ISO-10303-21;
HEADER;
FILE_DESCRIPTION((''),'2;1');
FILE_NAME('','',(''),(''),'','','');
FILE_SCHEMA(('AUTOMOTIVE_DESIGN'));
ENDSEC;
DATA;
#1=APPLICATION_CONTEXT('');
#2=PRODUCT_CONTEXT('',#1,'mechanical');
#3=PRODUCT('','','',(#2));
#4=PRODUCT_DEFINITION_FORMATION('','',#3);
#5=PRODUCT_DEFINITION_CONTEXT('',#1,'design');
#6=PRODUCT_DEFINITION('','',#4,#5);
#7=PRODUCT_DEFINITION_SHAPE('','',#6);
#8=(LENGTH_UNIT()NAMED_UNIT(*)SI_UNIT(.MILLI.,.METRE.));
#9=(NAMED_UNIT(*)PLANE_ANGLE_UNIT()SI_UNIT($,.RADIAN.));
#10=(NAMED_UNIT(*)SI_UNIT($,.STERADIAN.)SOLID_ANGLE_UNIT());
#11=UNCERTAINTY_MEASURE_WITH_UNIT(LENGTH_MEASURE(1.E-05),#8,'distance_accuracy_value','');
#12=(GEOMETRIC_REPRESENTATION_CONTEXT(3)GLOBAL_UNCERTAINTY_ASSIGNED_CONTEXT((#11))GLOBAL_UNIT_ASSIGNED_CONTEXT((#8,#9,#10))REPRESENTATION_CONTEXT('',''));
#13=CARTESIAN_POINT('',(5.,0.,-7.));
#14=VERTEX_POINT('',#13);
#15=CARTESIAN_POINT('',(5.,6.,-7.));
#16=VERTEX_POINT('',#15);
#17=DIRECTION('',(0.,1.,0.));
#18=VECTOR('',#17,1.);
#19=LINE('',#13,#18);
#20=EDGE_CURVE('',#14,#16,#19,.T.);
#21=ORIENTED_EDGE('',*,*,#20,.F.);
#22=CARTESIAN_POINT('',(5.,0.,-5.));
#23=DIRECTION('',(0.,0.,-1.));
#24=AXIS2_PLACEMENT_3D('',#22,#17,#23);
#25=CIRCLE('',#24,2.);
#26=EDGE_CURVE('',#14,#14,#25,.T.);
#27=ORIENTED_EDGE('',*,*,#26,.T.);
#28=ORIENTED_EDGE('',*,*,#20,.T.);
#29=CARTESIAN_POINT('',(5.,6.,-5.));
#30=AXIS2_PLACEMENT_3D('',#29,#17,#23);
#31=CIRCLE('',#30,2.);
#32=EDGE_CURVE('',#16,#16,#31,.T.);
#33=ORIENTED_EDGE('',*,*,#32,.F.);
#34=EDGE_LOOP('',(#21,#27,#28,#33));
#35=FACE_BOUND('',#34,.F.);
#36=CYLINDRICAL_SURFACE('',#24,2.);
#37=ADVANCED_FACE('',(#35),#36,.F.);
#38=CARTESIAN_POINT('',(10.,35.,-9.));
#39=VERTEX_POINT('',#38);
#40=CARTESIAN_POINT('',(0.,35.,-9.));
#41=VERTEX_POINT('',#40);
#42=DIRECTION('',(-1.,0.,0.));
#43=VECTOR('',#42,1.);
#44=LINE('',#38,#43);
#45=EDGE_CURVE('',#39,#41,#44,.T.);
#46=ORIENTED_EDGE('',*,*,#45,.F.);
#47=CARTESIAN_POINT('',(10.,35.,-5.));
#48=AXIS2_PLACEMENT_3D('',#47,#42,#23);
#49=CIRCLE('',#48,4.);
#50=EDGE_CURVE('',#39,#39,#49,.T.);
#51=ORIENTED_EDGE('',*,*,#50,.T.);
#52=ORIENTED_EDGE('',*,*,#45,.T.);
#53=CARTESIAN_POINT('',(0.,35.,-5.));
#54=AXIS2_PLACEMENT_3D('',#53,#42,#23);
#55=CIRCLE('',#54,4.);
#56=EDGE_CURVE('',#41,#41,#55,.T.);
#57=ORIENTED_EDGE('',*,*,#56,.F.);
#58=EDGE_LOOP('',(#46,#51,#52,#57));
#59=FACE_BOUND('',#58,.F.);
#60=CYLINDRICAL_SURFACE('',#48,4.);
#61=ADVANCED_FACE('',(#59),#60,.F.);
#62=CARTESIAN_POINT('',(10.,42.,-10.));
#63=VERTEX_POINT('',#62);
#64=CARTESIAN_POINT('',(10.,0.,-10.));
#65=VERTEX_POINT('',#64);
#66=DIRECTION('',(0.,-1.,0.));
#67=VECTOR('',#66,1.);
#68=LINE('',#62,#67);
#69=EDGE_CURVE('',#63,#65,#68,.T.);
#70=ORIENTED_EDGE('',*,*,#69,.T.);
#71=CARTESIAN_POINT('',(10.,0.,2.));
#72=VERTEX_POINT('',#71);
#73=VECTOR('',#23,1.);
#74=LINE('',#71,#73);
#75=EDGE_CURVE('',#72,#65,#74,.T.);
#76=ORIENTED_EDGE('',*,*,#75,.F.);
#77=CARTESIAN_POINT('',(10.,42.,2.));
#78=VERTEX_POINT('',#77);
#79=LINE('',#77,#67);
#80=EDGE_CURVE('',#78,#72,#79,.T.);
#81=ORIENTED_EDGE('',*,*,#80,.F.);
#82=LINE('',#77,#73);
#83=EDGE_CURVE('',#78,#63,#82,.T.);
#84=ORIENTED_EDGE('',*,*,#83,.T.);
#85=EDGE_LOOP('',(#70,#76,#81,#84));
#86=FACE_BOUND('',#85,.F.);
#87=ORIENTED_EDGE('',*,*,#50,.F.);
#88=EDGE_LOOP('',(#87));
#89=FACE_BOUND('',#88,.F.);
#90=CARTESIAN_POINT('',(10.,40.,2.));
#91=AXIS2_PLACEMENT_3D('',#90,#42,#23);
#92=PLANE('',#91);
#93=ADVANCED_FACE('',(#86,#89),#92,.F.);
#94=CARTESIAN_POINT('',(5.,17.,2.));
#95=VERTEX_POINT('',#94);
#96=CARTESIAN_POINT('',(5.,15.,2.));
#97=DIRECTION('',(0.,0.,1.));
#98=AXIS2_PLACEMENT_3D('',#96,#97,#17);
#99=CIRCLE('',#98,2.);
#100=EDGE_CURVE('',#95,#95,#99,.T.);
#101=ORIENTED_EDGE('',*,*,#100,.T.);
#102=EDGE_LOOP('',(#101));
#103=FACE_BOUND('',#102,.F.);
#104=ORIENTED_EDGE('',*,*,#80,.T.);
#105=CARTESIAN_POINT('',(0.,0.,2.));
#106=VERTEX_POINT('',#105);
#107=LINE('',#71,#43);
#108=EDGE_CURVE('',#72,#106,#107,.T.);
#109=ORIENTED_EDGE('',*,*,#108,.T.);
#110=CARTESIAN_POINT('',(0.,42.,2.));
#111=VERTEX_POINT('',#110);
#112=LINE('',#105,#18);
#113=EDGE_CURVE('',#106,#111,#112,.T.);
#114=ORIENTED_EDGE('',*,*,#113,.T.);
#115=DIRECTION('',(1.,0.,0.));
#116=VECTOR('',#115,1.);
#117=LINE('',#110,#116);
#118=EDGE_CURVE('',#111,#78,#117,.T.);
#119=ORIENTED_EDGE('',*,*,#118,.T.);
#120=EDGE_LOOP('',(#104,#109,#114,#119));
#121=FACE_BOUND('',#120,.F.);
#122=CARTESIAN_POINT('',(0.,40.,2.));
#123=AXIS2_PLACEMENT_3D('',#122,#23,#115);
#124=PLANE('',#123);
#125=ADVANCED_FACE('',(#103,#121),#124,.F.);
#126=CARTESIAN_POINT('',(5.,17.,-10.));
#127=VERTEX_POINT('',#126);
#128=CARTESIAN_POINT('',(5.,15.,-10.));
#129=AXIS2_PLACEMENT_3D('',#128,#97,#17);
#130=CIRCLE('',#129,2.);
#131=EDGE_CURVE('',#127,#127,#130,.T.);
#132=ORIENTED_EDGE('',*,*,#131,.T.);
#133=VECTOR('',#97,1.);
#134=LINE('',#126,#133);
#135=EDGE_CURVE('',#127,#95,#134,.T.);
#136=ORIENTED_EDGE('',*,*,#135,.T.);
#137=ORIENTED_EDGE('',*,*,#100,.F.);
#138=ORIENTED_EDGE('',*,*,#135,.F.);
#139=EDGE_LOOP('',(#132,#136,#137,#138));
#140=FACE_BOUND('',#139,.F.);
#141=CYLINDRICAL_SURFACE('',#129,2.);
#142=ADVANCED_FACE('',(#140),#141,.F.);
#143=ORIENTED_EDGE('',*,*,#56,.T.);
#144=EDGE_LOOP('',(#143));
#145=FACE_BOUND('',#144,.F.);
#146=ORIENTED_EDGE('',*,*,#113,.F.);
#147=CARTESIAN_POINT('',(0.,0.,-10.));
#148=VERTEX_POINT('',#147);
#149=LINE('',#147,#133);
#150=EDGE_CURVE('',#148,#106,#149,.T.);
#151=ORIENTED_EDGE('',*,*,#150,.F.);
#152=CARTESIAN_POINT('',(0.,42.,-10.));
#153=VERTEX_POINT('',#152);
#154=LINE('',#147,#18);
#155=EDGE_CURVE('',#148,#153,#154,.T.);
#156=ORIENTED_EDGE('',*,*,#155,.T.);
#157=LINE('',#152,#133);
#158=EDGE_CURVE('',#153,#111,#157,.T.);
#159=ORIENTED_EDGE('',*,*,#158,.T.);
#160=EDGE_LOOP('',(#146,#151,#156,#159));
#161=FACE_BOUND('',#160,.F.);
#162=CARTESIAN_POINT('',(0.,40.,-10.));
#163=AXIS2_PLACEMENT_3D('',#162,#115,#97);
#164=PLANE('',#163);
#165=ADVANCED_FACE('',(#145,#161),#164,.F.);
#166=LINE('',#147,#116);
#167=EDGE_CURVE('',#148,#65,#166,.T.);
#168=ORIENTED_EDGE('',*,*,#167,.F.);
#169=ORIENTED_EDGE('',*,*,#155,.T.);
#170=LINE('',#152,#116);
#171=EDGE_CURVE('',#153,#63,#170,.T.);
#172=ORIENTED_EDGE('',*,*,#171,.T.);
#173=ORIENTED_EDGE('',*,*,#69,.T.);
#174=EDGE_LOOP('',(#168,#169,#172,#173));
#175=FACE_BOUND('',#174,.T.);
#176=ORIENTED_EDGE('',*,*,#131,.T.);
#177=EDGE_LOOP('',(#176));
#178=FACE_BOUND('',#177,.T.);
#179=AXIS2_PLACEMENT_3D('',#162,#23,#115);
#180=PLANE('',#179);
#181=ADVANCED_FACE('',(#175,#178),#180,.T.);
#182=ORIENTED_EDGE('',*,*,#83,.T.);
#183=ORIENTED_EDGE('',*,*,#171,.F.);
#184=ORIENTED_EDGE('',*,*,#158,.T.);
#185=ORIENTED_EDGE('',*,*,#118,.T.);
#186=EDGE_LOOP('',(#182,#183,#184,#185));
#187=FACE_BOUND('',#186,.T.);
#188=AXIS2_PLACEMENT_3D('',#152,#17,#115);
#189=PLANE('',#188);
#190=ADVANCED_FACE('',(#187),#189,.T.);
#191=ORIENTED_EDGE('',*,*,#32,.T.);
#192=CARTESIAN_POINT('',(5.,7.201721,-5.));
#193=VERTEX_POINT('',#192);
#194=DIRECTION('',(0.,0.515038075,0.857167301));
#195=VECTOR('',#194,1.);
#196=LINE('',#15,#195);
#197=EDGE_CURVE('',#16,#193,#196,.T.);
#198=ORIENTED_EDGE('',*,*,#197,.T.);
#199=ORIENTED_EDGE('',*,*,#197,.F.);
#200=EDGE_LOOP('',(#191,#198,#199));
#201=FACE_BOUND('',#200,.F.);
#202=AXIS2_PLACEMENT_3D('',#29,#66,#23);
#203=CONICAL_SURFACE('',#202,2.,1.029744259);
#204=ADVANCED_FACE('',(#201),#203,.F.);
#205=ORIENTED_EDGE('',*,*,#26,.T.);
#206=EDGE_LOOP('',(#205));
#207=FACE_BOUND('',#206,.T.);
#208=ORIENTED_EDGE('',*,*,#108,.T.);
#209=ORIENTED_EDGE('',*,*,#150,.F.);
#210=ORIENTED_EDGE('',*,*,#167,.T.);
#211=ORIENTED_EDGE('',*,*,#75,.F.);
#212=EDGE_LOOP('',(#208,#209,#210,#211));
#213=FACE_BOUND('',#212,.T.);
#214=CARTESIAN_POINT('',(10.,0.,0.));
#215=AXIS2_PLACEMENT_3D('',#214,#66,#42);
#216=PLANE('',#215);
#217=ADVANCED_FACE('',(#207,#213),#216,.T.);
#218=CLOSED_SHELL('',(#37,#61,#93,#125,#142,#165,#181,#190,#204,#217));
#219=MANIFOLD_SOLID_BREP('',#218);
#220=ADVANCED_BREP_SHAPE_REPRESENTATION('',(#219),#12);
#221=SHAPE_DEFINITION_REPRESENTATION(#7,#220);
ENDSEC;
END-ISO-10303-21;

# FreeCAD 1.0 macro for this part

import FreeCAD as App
import Part
import Sketcher

doc = App.newDocument("Part")
body = doc.addObject("PartDesign::Body", "Body")

# Sketch on YZ plane
sketch1 = doc.addObject("Sketcher::SketchObject", "Sketch")
body.addObject(sketch1)
sketch1.AttachmentSupport = (doc.YZ_Plane, [""])
sketch1.MapMode = "FlatFace"
sketch1.addGeometry(Part.LineSegment(App.Vector(40, 0, 0), App.Vector(0, 0, 0)), False)
sketch1.addGeometry(Part.LineSegment(App.Vector(0, 0, 0), App.Vector(0, -10, 0)), False)
sketch1.addGeometry(Part.LineSegment(App.Vector(0, -10, 0), App.Vector(40, -10, 0)), False)
sketch1.addGeometry(Part.LineSegment(App.Vector(40, -10, 0), App.Vector(40, 0, 0)), False)
sketch1.addConstraint(Sketcher.Constraint("Coincident", 0, 2, 1, 1))
sketch1.addConstraint(Sketcher.Constraint("Coincident", 1, 2, 2, 1))
sketch1.addConstraint(Sketcher.Constraint("Coincident", 2, 2, 3, 1))
sketch1.addConstraint(Sketcher.Constraint("Coincident", 3, 2, 0, 1))
sketch1.addConstraint(Sketcher.Constraint("Horizontal", 0))
sketch1.addConstraint(Sketcher.Constraint("Vertical", 1))
sketch1.addConstraint(Sketcher.Constraint("Horizontal", 2))
sketch1.addConstraint(Sketcher.Constraint("Vertical", 3))
sketch1.addConstraint(Sketcher.Constraint("Coincident", 0, 2, -1, 1))
sketch1.addConstraint(Sketcher.Constraint("DistanceX", 0, 2, 0, 1, 40.0))
sketch1.addConstraint(Sketcher.Constraint("DistanceY", 1, 2, 1, 1, 10.0))
pad1 = doc.addObject("PartDesign::Pad", "Pad")
body.addObject(pad1)
pad1.Profile = sketch1
pad1.Length = 10

# Sketch on YZ plane
sketch2 = doc.addObject("Sketcher::SketchObject", "Sketch001")
body.addObject(sketch2)
sketch2.AttachmentSupport = (doc.YZ_Plane, [""])
sketch2.MapMode = "FlatFace"
sketch2.AttachmentOffset = App.Placement(App.Vector(0, 0, 10), App.Rotation())
sketch2.addGeometry(Part.Circle(App.Vector(35, -5, 0), App.Vector(0, 0, 1), 4), False)
sketch2.addConstraint(Sketcher.Constraint("Diameter", 0, 8.0))
sketch2.addConstraint(Sketcher.Constraint("DistanceX", -1, 1, 0, 3, 35.0))
sketch2.addConstraint(Sketcher.Constraint("DistanceY", 0, 3, -1, 1, 5.0))
doc.recompute()
hole = doc.addObject("PartDesign::Hole", "Hole")
body.addObject(hole)
hole.Profile = sketch2
hole.ThreadType = "None"
hole.Diameter = 8
hole.DepthType = "Dimension"
hole.Depth = 10
hole.DrillPoint = "Angled"
hole.DrillPointAngle = 118

# Sketch on XY plane
sketch3 = doc.addObject("Sketcher::SketchObject", "Sketch002")
body.addObject(sketch3)
sketch3.AttachmentSupport = (doc.XY_Plane, [""])
sketch3.MapMode = "FlatFace"
sketch3.addGeometry(Part.LineSegment(App.Vector(10, 40, 0), App.Vector(0, 40, 0)), False)
sketch3.addGeometry(Part.LineSegment(App.Vector(0, 40, 0), App.Vector(0, 0, 0)), False)
sketch3.addGeometry(Part.LineSegment(App.Vector(0, 0, 0), App.Vector(10, 0, 0)), False)
sketch3.addGeometry(Part.LineSegment(App.Vector(10, 0, 0), App.Vector(10, 40, 0)), False)
sketch3.addConstraint(Sketcher.Constraint("Coincident", 0, 2, 1, 1))
sketch3.addConstraint(Sketcher.Constraint("Coincident", 1, 2, 2, 1))
sketch3.addConstraint(Sketcher.Constraint("Coincident", 2, 2, 3, 1))
sketch3.addConstraint(Sketcher.Constraint("Coincident", 3, 2, 0, 1))
sketch3.addConstraint(Sketcher.Constraint("Horizontal", 0))
sketch3.addConstraint(Sketcher.Constraint("Vertical", 1))
sketch3.addConstraint(Sketcher.Constraint("Horizontal", 2))
sketch3.addConstraint(Sketcher.Constraint("Vertical", 3))
sketch3.addConstraint(Sketcher.Constraint("Coincident", 1, 2, -1, 1))
sketch3.addConstraint(Sketcher.Constraint("DistanceX", 0, 2, 0, 1, 10.0))
sketch3.addConstraint(Sketcher.Constraint("DistanceY", 1, 2, 1, 1, 40.0))
pad2 = doc.addObject("PartDesign::Pad", "Pad001")
body.addObject(pad2)
pad2.Profile = sketch3
pad2.Length = 2

# Sketch on XZ plane
sketch4 = doc.addObject("Sketcher::SketchObject", "Sketch003")
body.addObject(sketch4)
sketch4.AttachmentSupport = (doc.XZ_Plane, [""])
sketch4.MapMode = "FlatFace"
sketch4.AttachmentOffset = App.Placement(App.Vector(0, 0, -40), App.Rotation())
sketch4.addGeometry(Part.LineSegment(App.Vector(10, -10, 0), App.Vector(0, -10, 0)), False)
sketch4.addGeometry(Part.LineSegment(App.Vector(0, -10, 0), App.Vector(0, 2, 0)), False)
sketch4.addGeometry(Part.LineSegment(App.Vector(0, 2, 0), App.Vector(10, 2, 0)), False)
sketch4.addGeometry(Part.LineSegment(App.Vector(10, 2, 0), App.Vector(10, -10, 0)), False)
sketch4.addConstraint(Sketcher.Constraint("Coincident", 0, 2, 1, 1))
sketch4.addConstraint(Sketcher.Constraint("Coincident", 1, 2, 2, 1))
sketch4.addConstraint(Sketcher.Constraint("Coincident", 2, 2, 3, 1))
sketch4.addConstraint(Sketcher.Constraint("Coincident", 3, 2, 0, 1))
sketch4.addConstraint(Sketcher.Constraint("Horizontal", 0))
sketch4.addConstraint(Sketcher.Constraint("Vertical", 1))
sketch4.addConstraint(Sketcher.Constraint("Horizontal", 2))
sketch4.addConstraint(Sketcher.Constraint("Vertical", 3))
sketch4.addConstraint(Sketcher.Constraint("PointOnObject", 0, 2, -2))
sketch4.addConstraint(Sketcher.Constraint("DistanceX", 0, 2, 0, 1, 10.0))
sketch4.addConstraint(Sketcher.Constraint("DistanceY", 1, 1, 1, 2, 12.0))
sketch4.addConstraint(Sketcher.Constraint("DistanceY", 0, 2, -1, 1, 10.0))
pad3 = doc.addObject("PartDesign::Pad", "Pad002")
body.addObject(pad3)
pad3.Profile = sketch4
pad3.Length = 2
pad3.Reversed = True

# Sketch on XZ plane
sketch5 = doc.addObject("Sketcher::SketchObject", "Sketch004")
body.addObject(sketch5)
sketch5.AttachmentSupport = (doc.XZ_Plane, [""])
sketch5.MapMode = "FlatFace"
sketch5.addGeometry(Part.Circle(App.Vector(5, -5, 0), App.Vector(0, 0, 1), 2), False)
sketch5.addConstraint(Sketcher.Constraint("Diameter", 0, 4.0))
sketch5.addConstraint(Sketcher.Constraint("DistanceX", -1, 1, 0, 3, 5.0))
sketch5.addConstraint(Sketcher.Constraint("DistanceY", 0, 3, -1, 1, 5.0))
doc.recompute()
hole2 = doc.addObject("PartDesign::Hole", "Hole001")
body.addObject(hole2)
hole2.Profile = sketch5
hole2.ThreadType = "None"
hole2.Diameter = 4
hole2.DepthType = "Dimension"
hole2.Depth = 6
hole2.DrillPoint = "Angled"
hole2.DrillPointAngle = 118

# Sketch on XY plane
sketch6 = doc.addObject("Sketcher::SketchObject", "Sketch005")
body.addObject(sketch6)
sketch6.AttachmentSupport = (doc.XY_Plane, [""])
sketch6.MapMode = "FlatFace"
sketch6.AttachmentOffset = App.Placement(App.Vector(0, 0, -10), App.Rotation())
sketch6.addGeometry(Part.Circle(App.Vector(5, 15, 0), App.Vector(0, 0, 1), 2), False)
sketch6.addConstraint(Sketcher.Constraint("Diameter", 0, 4.0))
sketch6.addConstraint(Sketcher.Constraint("DistanceX", -1, 1, 0, 3, 5.0))
sketch6.addConstraint(Sketcher.Constraint("DistanceY", -1, 1, 0, 3, 15.0))
doc.recompute()
hole3 = doc.addObject("PartDesign::Hole", "Hole002")
body.addObject(hole3)
hole3.Profile = sketch6
hole3.ThreadType = "None"
hole3.Diameter = 4
hole3.DepthType = "Dimension"
hole3.Depth = 12
hole3.DrillPoint = "Angled"
hole3.DrillPointAngle = 118
hole3.Reversed = True

doc.recompute()
